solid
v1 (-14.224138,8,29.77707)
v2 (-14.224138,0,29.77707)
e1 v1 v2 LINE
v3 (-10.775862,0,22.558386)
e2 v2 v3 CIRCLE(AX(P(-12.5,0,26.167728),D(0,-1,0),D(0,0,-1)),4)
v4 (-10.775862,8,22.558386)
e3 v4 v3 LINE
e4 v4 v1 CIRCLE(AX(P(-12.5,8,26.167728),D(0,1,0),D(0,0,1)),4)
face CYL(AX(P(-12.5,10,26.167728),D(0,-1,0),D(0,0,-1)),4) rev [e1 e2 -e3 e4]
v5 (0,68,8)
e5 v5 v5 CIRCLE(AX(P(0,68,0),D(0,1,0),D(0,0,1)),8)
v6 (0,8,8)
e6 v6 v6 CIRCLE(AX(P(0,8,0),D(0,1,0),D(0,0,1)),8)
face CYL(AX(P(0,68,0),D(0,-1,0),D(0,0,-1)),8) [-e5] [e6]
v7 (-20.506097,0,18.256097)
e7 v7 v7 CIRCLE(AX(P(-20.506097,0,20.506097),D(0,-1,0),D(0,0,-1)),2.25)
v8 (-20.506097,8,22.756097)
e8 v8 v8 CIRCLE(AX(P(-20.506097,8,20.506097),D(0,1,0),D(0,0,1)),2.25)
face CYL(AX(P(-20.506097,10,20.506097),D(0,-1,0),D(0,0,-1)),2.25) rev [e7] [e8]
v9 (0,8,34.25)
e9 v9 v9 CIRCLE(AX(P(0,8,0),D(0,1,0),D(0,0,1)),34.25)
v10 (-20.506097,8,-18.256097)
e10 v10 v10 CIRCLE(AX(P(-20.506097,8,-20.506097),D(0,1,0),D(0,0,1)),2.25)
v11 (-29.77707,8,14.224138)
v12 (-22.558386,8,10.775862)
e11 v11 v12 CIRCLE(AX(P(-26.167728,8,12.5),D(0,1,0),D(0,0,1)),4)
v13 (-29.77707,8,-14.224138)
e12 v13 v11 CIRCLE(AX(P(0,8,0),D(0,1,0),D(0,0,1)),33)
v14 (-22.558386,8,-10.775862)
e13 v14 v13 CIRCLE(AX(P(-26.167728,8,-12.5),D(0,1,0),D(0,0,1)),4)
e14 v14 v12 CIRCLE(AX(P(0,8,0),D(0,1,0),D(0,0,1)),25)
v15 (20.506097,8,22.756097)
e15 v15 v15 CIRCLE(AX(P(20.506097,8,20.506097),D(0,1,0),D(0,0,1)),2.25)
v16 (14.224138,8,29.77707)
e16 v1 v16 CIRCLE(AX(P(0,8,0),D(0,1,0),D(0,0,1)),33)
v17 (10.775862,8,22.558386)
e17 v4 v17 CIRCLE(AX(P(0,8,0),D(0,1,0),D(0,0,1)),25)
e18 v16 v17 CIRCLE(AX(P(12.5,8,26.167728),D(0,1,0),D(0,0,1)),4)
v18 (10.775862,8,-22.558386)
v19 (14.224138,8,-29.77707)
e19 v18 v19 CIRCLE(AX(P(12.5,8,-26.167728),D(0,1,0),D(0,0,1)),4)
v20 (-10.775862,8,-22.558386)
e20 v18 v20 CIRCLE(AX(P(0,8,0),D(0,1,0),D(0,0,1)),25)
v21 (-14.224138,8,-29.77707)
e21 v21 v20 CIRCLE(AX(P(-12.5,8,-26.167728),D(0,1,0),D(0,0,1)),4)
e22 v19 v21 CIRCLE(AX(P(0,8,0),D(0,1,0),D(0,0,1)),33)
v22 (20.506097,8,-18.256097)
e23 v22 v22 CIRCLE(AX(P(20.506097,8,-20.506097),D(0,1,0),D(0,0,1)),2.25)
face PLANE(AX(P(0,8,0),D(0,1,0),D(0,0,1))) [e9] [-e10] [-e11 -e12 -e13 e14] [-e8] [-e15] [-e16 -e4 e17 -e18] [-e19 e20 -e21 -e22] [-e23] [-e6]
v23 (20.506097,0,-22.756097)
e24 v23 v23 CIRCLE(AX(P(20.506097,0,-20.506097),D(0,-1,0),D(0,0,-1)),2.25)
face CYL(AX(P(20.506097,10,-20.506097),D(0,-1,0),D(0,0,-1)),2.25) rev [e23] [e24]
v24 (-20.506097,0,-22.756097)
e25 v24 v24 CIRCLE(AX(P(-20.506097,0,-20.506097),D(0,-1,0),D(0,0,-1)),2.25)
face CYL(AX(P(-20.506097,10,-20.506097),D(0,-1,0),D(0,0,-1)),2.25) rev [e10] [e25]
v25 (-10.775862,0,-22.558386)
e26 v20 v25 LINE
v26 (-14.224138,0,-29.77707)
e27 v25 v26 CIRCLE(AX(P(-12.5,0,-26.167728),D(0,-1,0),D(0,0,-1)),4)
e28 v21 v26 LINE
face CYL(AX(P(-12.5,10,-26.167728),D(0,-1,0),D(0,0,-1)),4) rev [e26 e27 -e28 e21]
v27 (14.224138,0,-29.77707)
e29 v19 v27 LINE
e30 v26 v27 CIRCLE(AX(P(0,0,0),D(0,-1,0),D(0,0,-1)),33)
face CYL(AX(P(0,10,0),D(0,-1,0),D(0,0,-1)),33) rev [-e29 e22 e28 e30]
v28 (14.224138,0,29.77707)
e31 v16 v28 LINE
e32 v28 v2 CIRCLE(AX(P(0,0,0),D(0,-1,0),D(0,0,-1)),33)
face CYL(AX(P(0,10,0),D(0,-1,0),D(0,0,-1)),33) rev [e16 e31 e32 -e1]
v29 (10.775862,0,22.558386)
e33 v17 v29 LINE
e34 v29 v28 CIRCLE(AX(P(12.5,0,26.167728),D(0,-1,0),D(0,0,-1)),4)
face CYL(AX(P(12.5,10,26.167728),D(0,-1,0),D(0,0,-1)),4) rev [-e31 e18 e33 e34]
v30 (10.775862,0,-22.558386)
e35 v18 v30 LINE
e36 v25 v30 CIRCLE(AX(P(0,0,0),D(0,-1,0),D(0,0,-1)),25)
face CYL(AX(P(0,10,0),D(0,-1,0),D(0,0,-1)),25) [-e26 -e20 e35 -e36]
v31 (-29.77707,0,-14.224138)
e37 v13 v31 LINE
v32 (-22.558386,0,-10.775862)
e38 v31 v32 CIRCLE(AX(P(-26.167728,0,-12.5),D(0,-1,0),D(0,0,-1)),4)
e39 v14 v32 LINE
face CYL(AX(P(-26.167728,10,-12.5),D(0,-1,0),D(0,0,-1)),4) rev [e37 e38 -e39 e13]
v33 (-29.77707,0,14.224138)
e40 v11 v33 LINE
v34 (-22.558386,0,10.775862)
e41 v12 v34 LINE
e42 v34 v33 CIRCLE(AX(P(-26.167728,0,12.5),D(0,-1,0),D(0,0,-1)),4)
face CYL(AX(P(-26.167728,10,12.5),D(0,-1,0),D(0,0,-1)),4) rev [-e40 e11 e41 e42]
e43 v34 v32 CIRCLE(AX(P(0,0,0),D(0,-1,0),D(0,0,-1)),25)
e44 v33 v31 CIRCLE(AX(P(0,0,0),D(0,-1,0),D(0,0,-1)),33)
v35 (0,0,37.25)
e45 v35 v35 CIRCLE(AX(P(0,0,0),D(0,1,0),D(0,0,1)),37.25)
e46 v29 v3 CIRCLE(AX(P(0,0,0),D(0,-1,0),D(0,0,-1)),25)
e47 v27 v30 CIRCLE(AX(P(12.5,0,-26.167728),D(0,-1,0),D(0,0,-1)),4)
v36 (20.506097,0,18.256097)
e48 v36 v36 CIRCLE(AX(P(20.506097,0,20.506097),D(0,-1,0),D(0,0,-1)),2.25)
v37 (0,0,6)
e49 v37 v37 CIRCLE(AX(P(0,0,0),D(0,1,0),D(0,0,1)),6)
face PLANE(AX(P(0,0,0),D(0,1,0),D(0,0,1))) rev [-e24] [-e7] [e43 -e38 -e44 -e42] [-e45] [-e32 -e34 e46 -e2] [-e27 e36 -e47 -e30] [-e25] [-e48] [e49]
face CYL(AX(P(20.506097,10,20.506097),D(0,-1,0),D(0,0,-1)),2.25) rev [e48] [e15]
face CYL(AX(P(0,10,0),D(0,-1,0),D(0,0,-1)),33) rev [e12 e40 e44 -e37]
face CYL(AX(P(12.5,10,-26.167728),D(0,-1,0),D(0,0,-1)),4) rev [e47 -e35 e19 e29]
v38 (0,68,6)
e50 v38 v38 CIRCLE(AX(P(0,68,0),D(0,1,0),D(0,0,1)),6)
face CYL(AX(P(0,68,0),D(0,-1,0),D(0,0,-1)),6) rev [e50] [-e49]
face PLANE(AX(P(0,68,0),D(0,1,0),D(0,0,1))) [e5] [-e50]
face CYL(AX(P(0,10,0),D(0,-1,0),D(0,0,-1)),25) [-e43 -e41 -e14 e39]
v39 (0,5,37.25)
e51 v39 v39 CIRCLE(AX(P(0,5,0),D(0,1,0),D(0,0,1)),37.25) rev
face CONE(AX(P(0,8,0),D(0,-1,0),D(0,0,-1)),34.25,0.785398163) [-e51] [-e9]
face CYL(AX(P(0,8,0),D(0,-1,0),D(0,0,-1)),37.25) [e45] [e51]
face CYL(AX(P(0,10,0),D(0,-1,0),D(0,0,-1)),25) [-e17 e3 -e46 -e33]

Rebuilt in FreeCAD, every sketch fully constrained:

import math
import FreeCAD as App
import Part
import Sketcher
from FreeCAD import Vector


def edges_at(feature, points):
    """Names of the edges that pass closest to the given points."""
    edges = feature.Shape.Edges
    near = lambda p: min(range(len(edges)), key=lambda i: edges[i].distToShape(Part.Vertex(*p))[0])
    return sorted({f"Edge{near(p) + 1}" for p in points})

doc = App.newDocument("Part")
body = doc.addObject("PartDesign::Body", "Body")

# Sketch on XZ plane
sketch1 = body.newObject("Sketcher::SketchObject", "Sketch")
sketch1.AttachmentSupport = (doc.getObject("XZ_Plane"), [""])
sketch1.MapMode = "FlatFace"
sketch1.addGeometry(Part.Circle(Vector(0, 0, 0), Vector(0, 0, 1), 37), False)
sketch1.addConstraint(Sketcher.Constraint("Coincident", 0, 3, -1, 1))
sketch1.addConstraint(Sketcher.Constraint("Diameter", 0, 74.5))
pad1 = body.newObject("PartDesign::Pad", "Pad")
pad1.Profile = sketch1
pad1.Length = 8
pad1.Reversed = True

# Sketch on XZ plane
sketch2 = body.newObject("Sketcher::SketchObject", "Sketch001")
sketch2.AttachmentSupport = (doc.getObject("XZ_Plane"), [""])
sketch2.MapMode = "FlatFace"
sketch2.AttachmentOffset = App.Placement(Vector(0, 0, -8), App.Rotation())
sketch2.addGeometry(Part.Circle(Vector(0, 0, 0), Vector(0, 0, 1), 8), False)
sketch2.addGeometry(Part.Circle(Vector(0, 0, 0), Vector(0, 0, 1), 6), False)
sketch2.addConstraint(Sketcher.Constraint("Coincident", 0, 3, -1, 1))
sketch2.addConstraint(Sketcher.Constraint("Coincident", 1, 3, -1, 1))
sketch2.addConstraint(Sketcher.Constraint("Diameter", 0, 16.0))
sketch2.addConstraint(Sketcher.Constraint("Diameter", 1, 12.0))
pad2 = body.newObject("PartDesign::Pad", "Pad001")
pad2.Profile = sketch2
pad2.Length = 60
pad2.Reversed = True
doc.recompute()

chamfer = body.newObject("PartDesign::Chamfer", "Chamfer")
chamfer.Base = (pad2, edges_at(pad2, [(0, 8, -37.25)]))
chamfer.Size = 3

# Sketch on XZ plane
sketch3 = body.newObject("Sketcher::SketchObject", "Sketch002")
sketch3.AttachmentSupport = (doc.getObject("XZ_Plane"), [""])
sketch3.MapMode = "FlatFace"
sketch3.AttachmentOffset = App.Placement(Vector(0, 0, 2), App.Rotation())
sketch3.addGeometry(Part.Circle(Vector(0, 0, 0), Vector(0, 0, 1), 6), False)
sketch3.addConstraint(Sketcher.Constraint("Coincident", 0, 3, -1, 1))
sketch3.addConstraint(Sketcher.Constraint("Diameter", 0, 12.0))
pocket1 = body.newObject("PartDesign::Pocket", "Pocket")
pocket1.Profile = sketch3
pocket1.Length = 10

# Sketch on XZ plane
sketch4 = body.newObject("Sketcher::SketchObject", "Sketch003")
sketch4.AttachmentSupport = (doc.getObject("XZ_Plane"), [""])
sketch4.MapMode = "FlatFace"
sketch4.addGeometry(Part.Circle(Vector(-20.5, -20.5, 0), Vector(0, 0, 1), 2.2), False)
sketch4.addGeometry(Part.Circle(Vector(-20.5, 20.5, 0), Vector(0, 0, 1), 2.2), False)
sketch4.addGeometry(Part.Circle(Vector(20.5, 20.5, 0), Vector(0, 0, 1), 2.2), False)
sketch4.addGeometry(Part.Circle(Vector(20.5, -20.5, 0), Vector(0, 0, 1), 2.2), False)
sketch4.addGeometry(Part.ArcOfCircle(Part.Circle(Vector(0, 0, 0), Vector(0, 0, 1), 33), math.radians(154), math.radians(206)), False)
sketch4.addGeometry(Part.ArcOfCircle(Part.Circle(Vector(-26.2, -12.5, 0), Vector(0, 0, 1), 4), math.radians(-154), math.radians(26)), False)
sketch4.addGeometry(Part.ArcOfCircle(Part.Circle(Vector(0, 0, 0), Vector(0, 0, 1), 25), math.radians(154), math.radians(206)), False)
sketch4.addGeometry(Part.ArcOfCircle(Part.Circle(Vector(-26.2, 12.5, 0), Vector(0, 0, 1), 4), math.radians(-26), math.radians(154)), False)
sketch4.addGeometry(Part.ArcOfCircle(Part.Circle(Vector(0, 0, 0), Vector(0, 0, 1), 33), math.radians(64), math.radians(116)), False)
sketch4.addGeometry(Part.ArcOfCircle(Part.Circle(Vector(-12.5, 26.2, 0), Vector(0, 0, 1), 4), math.radians(116), math.radians(296)), False)
sketch4.addGeometry(Part.ArcOfCircle(Part.Circle(Vector(0, 0, 0), Vector(0, 0, 1), 25), math.radians(64), math.radians(116)), False)
sketch4.addGeometry(Part.ArcOfCircle(Part.Circle(Vector(12.5, 26.2, 0), Vector(0, 0, 1), 4), math.radians(-116), math.radians(64)), False)
sketch4.addGeometry(Part.ArcOfCircle(Part.Circle(Vector(0, 0, 0), Vector(0, 0, 1), 33), math.radians(-116), math.radians(-64)), False)
sketch4.addGeometry(Part.ArcOfCircle(Part.Circle(Vector(12.5, -26.2, 0), Vector(0, 0, 1), 4), math.radians(-64), math.radians(116)), False)
sketch4.addGeometry(Part.ArcOfCircle(Part.Circle(Vector(0, 0, 0), Vector(0, 0, 1), 25), math.radians(-116), math.radians(-64)), False)
sketch4.addGeometry(Part.ArcOfCircle(Part.Circle(Vector(-12.5, -26.2, 0), Vector(0, 0, 1), 4), math.radians(64), math.radians(244)), False)
sketch4.addConstraint(Sketcher.Constraint("Tangent", 4, 2, 5, 1))
sketch4.addConstraint(Sketcher.Constraint("Tangent", 5, 2, 6, 2))
sketch4.addConstraint(Sketcher.Constraint("Tangent", 6, 1, 7, 1))
sketch4.addConstraint(Sketcher.Constraint("Tangent", 7, 2, 4, 1))
sketch4.addConstraint(Sketcher.Constraint("Tangent", 8, 2, 9, 1))
sketch4.addConstraint(Sketcher.Constraint("Tangent", 9, 2, 10, 2))
sketch4.addConstraint(Sketcher.Constraint("Tangent", 10, 1, 11, 1))
sketch4.addConstraint(Sketcher.Constraint("Tangent", 11, 2, 8, 1))
sketch4.addConstraint(Sketcher.Constraint("Tangent", 12, 2, 13, 1))
sketch4.addConstraint(Sketcher.Constraint("Tangent", 13, 2, 14, 2))
sketch4.addConstraint(Sketcher.Constraint("Tangent", 14, 1, 15, 1))
sketch4.addConstraint(Sketcher.Constraint("Tangent", 15, 2, 12, 1))
sketch4.addConstraint(Sketcher.Constraint("Coincident", 4, 3, -1, 1))
sketch4.addConstraint(Sketcher.Constraint("Coincident", 6, 3, -1, 1))
sketch4.addConstraint(Sketcher.Constraint("Coincident", 8, 3, -1, 1))
sketch4.addConstraint(Sketcher.Constraint("Coincident", 10, 3, -1, 1))
sketch4.addConstraint(Sketcher.Constraint("Coincident", 12, 3, -1, 1))
sketch4.addConstraint(Sketcher.Constraint("Coincident", 14, 3, -1, 1))
sketch4.addConstraint(Sketcher.Constraint("Equal", 0, 1))
sketch4.addConstraint(Sketcher.Constraint("Equal", 1, 2))
sketch4.addConstraint(Sketcher.Constraint("Equal", 2, 3))
sketch4.addConstraint(Sketcher.Constraint("Equal", 4, 8))
sketch4.addConstraint(Sketcher.Constraint("Equal", 7, 9))
sketch4.addConstraint(Sketcher.Constraint("Equal", 8, 12))
sketch4.addConstraint(Sketcher.Constraint("Equal", 11, 13))
sketch4.addConstraint(Sketcher.Constraint("Symmetric", 0, 3, 2, 3, -1, 1))
sketch4.addConstraint(Sketcher.Constraint("Symmetric", 1, 3, 3, 3, -1, 1))
sketch4.addConstraint(Sketcher.Constraint("Symmetric", 1, 3, 2, 3, -2))
sketch4.addConstraint(Sketcher.Constraint("Horizontal", 9, 3, 11, 3))
sketch4.addConstraint(Sketcher.Constraint("Horizontal", 13, 3, 15, 3))
sketch4.addConstraint(Sketcher.Constraint("Vertical", 5, 3, 7, 3))
sketch4.addConstraint(Sketcher.Constraint("Vertical", 11, 3, 13, 3))
sketch4.addConstraint(Sketcher.Constraint("Radius", 4, 33.0))
sketch4.addConstraint(Sketcher.Constraint("Radius", 5, 4.0))
sketch4.addConstraint(Sketcher.Constraint("Diameter", 0, 4.5))
sketch4.addConstraint(Sketcher.Constraint("DistanceY", 5, 3, 7, 3, 25.0))
sketch4.addConstraint(Sketcher.Constraint("DistanceX", 9, 3, 11, 3, 25.0))
sketch4.addConstraint(Sketcher.Constraint("DistanceX", 5, 3, 0, 3, 5.661632))
sketch4.addConstraint(Sketcher.Constraint("DistanceY", 1, 3, 9, 3, 5.661632))
pocket2 = body.newObject("PartDesign::Pocket", "Pocket001")
pocket2.Profile = sketch4
pocket2.Length = 10

doc.recompute()
